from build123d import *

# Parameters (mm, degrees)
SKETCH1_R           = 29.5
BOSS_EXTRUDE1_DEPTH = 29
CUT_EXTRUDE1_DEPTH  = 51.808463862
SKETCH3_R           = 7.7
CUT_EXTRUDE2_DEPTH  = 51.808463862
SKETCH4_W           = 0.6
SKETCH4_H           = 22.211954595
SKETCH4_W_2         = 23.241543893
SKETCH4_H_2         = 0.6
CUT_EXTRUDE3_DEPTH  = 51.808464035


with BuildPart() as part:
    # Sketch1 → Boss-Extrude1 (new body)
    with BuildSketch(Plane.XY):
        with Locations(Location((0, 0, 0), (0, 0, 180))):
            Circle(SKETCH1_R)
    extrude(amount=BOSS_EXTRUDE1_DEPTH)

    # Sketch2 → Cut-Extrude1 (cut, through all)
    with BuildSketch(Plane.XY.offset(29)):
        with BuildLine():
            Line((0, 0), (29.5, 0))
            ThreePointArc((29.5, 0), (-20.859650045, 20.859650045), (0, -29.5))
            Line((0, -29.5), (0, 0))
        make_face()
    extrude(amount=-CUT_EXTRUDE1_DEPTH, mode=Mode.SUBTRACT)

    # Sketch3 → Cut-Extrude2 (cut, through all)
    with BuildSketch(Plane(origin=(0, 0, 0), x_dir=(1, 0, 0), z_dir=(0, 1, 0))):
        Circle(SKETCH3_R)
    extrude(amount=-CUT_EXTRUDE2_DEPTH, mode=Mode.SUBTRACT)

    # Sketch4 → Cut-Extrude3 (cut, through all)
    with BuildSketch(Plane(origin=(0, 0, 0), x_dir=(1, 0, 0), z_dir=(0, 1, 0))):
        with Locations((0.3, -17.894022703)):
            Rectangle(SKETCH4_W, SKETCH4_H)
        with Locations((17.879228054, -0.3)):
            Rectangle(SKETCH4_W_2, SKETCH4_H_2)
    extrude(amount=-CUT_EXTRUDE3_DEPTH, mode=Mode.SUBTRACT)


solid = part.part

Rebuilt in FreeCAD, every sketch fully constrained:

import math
import FreeCAD as App
import Part
import Sketcher
Q = App.Units.Quantity

doc = App.newDocument("Part")
params = doc.addObject("Spreadsheet::Sheet", "Params")
for row, (alias, value) in enumerate([
    ("sketch1_diameter", "59 mm"),
    ("pad1_length", "29 mm"),
    ("sketch2_radius", "29.5 mm"),
    ("sketch3_diameter", "15.4 mm"),
    ("sketch4_width", "0.6 mm"),
], start=1):
    params.set(f"A{row}", alias)
    params.set(f"B{row}", "=" + value)
    params.setAlias(f"B{row}", alias)

body = doc.addObject("PartDesign::Body", "Body")

sketch1 = body.newObject("Sketcher::SketchObject", "Sketch")
sketch1.AttachmentSupport = (doc.getObject("XY_Plane"), [""])
sketch1.MapMode = "FlatFace"
sketch1.addGeometry(Part.Circle(App.Vector(0, 0, 0), App.Vector(0, 0, 1), 30), False)
sketch1.addConstraint(Sketcher.Constraint("Coincident", 0, 3, -1, 1))
sketch1.addConstraint(Sketcher.Constraint("Diameter", 0, Q("59 mm")))
sketch1.setExpression("Constraints[1]", "Params.sketch1_diameter")
pad1 = body.newObject("PartDesign::Pad", "Pad")
pad1.Profile = sketch1
pad1.setExpression("Length", "Params.pad1_length")

sketch2 = body.newObject("Sketcher::SketchObject", "Sketch001")
sketch2.AttachmentSupport = (doc.getObject("XY_Plane"), [""])
sketch2.MapMode = "FlatFace"
sketch2.AttachmentOffset = App.Placement(App.Vector(0, 0, 29), App.Rotation())
sketch2.addGeometry(Part.LineSegment(App.Vector(0, 0, 0), App.Vector(30, 0, 0)), False)
sketch2.addGeometry(Part.ArcOfCircle(Part.Circle(App.Vector(0, 0, 0), App.Vector(0, 0, 1), 30), math.radians(0), math.radians(270)), False)
sketch2.addGeometry(Part.LineSegment(App.Vector(0, -30, 0), App.Vector(0, 0, 0)), False)
sketch2.addConstraint(Sketcher.Constraint("Coincident", 0, 2, 1, 1))
sketch2.addConstraint(Sketcher.Constraint("Coincident", 1, 2, 2, 1))
sketch2.addConstraint(Sketcher.Constraint("Coincident", 2, 2, 0, 1))
sketch2.addConstraint(Sketcher.Constraint("Horizontal", 0))
sketch2.addConstraint(Sketcher.Constraint("Vertical", 2))
sketch2.addConstraint(Sketcher.Constraint("Coincident", 1, 3, -1, 1))
sketch2.addConstraint(Sketcher.Constraint("Coincident", 2, 2, -1, 1))
sketch2.addConstraint(Sketcher.Constraint("Radius", 1, Q("29.5 mm")))
sketch2.setExpression("Constraints[7]", "Params.sketch2_radius")
pocket1 = body.newObject("PartDesign::Pocket", "Pocket")
pocket1.Profile = sketch2
pocket1.Type = "ThroughAll"

sketch3 = body.newObject("Sketcher::SketchObject", "Sketch002")
sketch3.AttachmentSupport = (doc.getObject("XZ_Plane"), [""])
sketch3.MapMode = "FlatFace"
sketch3.addGeometry(Part.Circle(App.Vector(0, 0, 0), App.Vector(0, 0, 1), 8), False)
sketch3.addConstraint(Sketcher.Constraint("Coincident", 0, 3, -1, 1))
sketch3.addConstraint(Sketcher.Constraint("Diameter", 0, Q("15.4 mm")))
sketch3.setExpression("Constraints[1]", "Params.sketch3_diameter")
pocket2 = body.newObject("PartDesign::Pocket", "Pocket001")
pocket2.Profile = sketch3
pocket2.Type = "ThroughAll"
pocket2.Reversed = True

sketch4 = body.newObject("Sketcher::SketchObject", "Sketch003")
sketch4.AttachmentSupport = (doc.getObject("XZ_Plane"), [""])
sketch4.MapMode = "FlatFace"
sketch4.addGeometry(Part.LineSegment(App.Vector(0, 6.8, 0), App.Vector(0, 29, 0)), False)
sketch4.addGeometry(Part.LineSegment(App.Vector(0, 29, 0), App.Vector(0.6, 29, 0)), False)
sketch4.addGeometry(Part.LineSegment(App.Vector(0.6, 29, 0), App.Vector(0.6, 6.8, 0)), False)
sketch4.addGeometry(Part.LineSegment(App.Vector(0.6, 6.8, 0), App.Vector(0, 6.8, 0)), False)
sketch4.addGeometry(Part.LineSegment(App.Vector(6.3, 0, 0), App.Vector(6.3, 0.6, 0)), False)
sketch4.addGeometry(Part.LineSegment(App.Vector(6.3, 0.6, 0), App.Vector(29.5, 0.6, 0)), False)
sketch4.addGeometry(Part.LineSegment(App.Vector(29.5, 0.6, 0), App.Vector(29.5, 0, 0)), False)
sketch4.addGeometry(Part.LineSegment(App.Vector(29.5, 0, 0), App.Vector(6.3, 0, 0)), False)
sketch4.addConstraint(Sketcher.Constraint("Coincident", 0, 2, 1, 1))
sketch4.addConstraint(Sketcher.Constraint("Coincident", 1, 2, 2, 1))
sketch4.addConstraint(Sketcher.Constraint("Coincident", 2, 2, 3, 1))
sketch4.addConstraint(Sketcher.Constraint("Coincident", 3, 2, 0, 1))
sketch4.addConstraint(Sketcher.Constraint("Coincident", 4, 2, 5, 1))
sketch4.addConstraint(Sketcher.Constraint("Coincident", 5, 2, 6, 1))
sketch4.addConstraint(Sketcher.Constraint("Coincident", 6, 2, 7, 1))
sketch4.addConstraint(Sketcher.Constraint("Coincident", 7, 2, 4, 1))
sketch4.addConstraint(Sketcher.Constraint("Vertical", 0))
sketch4.addConstraint(Sketcher.Constraint("Horizontal", 1))
sketch4.addConstraint(Sketcher.Constraint("Vertical", 2))
sketch4.addConstraint(Sketcher.Constraint("Horizontal", 3))
sketch4.addConstraint(Sketcher.Constraint("Vertical", 4))
sketch4.addConstraint(Sketcher.Constraint("Horizontal", 5))
sketch4.addConstraint(Sketcher.Constraint("Vertical", 6))
sketch4.addConstraint(Sketcher.Constraint("Horizontal", 7))
sketch4.addConstraint(Sketcher.Constraint("PointOnObject", 0, 2, -2))
sketch4.addConstraint(Sketcher.Constraint("PointOnObject", 6, 2, -1))
sketch4.addConstraint(Sketcher.Constraint("Equal", 3, 4))
sketch4.addConstraint(Sketcher.Constraint("DistanceX", 1, 1, 1, 2, Q("0.6 mm")))
sketch4.addConstraint(Sketcher.Constraint("DistanceY", -1, 1, 0, 2, Q("29 mm")))
sketch4.addConstraint(Sketcher.Constraint("DistanceX", -1, 1, 5, 2, Q("29.5 mm")))
sketch4.addConstraint(Sketcher.Constraint("DistanceX", 5, 1, 5, 2, Q("23.241544 mm")))
sketch4.addConstraint(Sketcher.Constraint("DistanceY", 0, 1, 0, 2, Q("22.211955 mm")))
sketch4.setExpression("Constraints[19]", "Params.sketch4_width")
pocket3 = body.newObject("PartDesign::Pocket", "Pocket002")
pocket3.Profile = sketch4
pocket3.Type = "ThroughAll"
pocket3.Reversed = True

doc.recompute()
